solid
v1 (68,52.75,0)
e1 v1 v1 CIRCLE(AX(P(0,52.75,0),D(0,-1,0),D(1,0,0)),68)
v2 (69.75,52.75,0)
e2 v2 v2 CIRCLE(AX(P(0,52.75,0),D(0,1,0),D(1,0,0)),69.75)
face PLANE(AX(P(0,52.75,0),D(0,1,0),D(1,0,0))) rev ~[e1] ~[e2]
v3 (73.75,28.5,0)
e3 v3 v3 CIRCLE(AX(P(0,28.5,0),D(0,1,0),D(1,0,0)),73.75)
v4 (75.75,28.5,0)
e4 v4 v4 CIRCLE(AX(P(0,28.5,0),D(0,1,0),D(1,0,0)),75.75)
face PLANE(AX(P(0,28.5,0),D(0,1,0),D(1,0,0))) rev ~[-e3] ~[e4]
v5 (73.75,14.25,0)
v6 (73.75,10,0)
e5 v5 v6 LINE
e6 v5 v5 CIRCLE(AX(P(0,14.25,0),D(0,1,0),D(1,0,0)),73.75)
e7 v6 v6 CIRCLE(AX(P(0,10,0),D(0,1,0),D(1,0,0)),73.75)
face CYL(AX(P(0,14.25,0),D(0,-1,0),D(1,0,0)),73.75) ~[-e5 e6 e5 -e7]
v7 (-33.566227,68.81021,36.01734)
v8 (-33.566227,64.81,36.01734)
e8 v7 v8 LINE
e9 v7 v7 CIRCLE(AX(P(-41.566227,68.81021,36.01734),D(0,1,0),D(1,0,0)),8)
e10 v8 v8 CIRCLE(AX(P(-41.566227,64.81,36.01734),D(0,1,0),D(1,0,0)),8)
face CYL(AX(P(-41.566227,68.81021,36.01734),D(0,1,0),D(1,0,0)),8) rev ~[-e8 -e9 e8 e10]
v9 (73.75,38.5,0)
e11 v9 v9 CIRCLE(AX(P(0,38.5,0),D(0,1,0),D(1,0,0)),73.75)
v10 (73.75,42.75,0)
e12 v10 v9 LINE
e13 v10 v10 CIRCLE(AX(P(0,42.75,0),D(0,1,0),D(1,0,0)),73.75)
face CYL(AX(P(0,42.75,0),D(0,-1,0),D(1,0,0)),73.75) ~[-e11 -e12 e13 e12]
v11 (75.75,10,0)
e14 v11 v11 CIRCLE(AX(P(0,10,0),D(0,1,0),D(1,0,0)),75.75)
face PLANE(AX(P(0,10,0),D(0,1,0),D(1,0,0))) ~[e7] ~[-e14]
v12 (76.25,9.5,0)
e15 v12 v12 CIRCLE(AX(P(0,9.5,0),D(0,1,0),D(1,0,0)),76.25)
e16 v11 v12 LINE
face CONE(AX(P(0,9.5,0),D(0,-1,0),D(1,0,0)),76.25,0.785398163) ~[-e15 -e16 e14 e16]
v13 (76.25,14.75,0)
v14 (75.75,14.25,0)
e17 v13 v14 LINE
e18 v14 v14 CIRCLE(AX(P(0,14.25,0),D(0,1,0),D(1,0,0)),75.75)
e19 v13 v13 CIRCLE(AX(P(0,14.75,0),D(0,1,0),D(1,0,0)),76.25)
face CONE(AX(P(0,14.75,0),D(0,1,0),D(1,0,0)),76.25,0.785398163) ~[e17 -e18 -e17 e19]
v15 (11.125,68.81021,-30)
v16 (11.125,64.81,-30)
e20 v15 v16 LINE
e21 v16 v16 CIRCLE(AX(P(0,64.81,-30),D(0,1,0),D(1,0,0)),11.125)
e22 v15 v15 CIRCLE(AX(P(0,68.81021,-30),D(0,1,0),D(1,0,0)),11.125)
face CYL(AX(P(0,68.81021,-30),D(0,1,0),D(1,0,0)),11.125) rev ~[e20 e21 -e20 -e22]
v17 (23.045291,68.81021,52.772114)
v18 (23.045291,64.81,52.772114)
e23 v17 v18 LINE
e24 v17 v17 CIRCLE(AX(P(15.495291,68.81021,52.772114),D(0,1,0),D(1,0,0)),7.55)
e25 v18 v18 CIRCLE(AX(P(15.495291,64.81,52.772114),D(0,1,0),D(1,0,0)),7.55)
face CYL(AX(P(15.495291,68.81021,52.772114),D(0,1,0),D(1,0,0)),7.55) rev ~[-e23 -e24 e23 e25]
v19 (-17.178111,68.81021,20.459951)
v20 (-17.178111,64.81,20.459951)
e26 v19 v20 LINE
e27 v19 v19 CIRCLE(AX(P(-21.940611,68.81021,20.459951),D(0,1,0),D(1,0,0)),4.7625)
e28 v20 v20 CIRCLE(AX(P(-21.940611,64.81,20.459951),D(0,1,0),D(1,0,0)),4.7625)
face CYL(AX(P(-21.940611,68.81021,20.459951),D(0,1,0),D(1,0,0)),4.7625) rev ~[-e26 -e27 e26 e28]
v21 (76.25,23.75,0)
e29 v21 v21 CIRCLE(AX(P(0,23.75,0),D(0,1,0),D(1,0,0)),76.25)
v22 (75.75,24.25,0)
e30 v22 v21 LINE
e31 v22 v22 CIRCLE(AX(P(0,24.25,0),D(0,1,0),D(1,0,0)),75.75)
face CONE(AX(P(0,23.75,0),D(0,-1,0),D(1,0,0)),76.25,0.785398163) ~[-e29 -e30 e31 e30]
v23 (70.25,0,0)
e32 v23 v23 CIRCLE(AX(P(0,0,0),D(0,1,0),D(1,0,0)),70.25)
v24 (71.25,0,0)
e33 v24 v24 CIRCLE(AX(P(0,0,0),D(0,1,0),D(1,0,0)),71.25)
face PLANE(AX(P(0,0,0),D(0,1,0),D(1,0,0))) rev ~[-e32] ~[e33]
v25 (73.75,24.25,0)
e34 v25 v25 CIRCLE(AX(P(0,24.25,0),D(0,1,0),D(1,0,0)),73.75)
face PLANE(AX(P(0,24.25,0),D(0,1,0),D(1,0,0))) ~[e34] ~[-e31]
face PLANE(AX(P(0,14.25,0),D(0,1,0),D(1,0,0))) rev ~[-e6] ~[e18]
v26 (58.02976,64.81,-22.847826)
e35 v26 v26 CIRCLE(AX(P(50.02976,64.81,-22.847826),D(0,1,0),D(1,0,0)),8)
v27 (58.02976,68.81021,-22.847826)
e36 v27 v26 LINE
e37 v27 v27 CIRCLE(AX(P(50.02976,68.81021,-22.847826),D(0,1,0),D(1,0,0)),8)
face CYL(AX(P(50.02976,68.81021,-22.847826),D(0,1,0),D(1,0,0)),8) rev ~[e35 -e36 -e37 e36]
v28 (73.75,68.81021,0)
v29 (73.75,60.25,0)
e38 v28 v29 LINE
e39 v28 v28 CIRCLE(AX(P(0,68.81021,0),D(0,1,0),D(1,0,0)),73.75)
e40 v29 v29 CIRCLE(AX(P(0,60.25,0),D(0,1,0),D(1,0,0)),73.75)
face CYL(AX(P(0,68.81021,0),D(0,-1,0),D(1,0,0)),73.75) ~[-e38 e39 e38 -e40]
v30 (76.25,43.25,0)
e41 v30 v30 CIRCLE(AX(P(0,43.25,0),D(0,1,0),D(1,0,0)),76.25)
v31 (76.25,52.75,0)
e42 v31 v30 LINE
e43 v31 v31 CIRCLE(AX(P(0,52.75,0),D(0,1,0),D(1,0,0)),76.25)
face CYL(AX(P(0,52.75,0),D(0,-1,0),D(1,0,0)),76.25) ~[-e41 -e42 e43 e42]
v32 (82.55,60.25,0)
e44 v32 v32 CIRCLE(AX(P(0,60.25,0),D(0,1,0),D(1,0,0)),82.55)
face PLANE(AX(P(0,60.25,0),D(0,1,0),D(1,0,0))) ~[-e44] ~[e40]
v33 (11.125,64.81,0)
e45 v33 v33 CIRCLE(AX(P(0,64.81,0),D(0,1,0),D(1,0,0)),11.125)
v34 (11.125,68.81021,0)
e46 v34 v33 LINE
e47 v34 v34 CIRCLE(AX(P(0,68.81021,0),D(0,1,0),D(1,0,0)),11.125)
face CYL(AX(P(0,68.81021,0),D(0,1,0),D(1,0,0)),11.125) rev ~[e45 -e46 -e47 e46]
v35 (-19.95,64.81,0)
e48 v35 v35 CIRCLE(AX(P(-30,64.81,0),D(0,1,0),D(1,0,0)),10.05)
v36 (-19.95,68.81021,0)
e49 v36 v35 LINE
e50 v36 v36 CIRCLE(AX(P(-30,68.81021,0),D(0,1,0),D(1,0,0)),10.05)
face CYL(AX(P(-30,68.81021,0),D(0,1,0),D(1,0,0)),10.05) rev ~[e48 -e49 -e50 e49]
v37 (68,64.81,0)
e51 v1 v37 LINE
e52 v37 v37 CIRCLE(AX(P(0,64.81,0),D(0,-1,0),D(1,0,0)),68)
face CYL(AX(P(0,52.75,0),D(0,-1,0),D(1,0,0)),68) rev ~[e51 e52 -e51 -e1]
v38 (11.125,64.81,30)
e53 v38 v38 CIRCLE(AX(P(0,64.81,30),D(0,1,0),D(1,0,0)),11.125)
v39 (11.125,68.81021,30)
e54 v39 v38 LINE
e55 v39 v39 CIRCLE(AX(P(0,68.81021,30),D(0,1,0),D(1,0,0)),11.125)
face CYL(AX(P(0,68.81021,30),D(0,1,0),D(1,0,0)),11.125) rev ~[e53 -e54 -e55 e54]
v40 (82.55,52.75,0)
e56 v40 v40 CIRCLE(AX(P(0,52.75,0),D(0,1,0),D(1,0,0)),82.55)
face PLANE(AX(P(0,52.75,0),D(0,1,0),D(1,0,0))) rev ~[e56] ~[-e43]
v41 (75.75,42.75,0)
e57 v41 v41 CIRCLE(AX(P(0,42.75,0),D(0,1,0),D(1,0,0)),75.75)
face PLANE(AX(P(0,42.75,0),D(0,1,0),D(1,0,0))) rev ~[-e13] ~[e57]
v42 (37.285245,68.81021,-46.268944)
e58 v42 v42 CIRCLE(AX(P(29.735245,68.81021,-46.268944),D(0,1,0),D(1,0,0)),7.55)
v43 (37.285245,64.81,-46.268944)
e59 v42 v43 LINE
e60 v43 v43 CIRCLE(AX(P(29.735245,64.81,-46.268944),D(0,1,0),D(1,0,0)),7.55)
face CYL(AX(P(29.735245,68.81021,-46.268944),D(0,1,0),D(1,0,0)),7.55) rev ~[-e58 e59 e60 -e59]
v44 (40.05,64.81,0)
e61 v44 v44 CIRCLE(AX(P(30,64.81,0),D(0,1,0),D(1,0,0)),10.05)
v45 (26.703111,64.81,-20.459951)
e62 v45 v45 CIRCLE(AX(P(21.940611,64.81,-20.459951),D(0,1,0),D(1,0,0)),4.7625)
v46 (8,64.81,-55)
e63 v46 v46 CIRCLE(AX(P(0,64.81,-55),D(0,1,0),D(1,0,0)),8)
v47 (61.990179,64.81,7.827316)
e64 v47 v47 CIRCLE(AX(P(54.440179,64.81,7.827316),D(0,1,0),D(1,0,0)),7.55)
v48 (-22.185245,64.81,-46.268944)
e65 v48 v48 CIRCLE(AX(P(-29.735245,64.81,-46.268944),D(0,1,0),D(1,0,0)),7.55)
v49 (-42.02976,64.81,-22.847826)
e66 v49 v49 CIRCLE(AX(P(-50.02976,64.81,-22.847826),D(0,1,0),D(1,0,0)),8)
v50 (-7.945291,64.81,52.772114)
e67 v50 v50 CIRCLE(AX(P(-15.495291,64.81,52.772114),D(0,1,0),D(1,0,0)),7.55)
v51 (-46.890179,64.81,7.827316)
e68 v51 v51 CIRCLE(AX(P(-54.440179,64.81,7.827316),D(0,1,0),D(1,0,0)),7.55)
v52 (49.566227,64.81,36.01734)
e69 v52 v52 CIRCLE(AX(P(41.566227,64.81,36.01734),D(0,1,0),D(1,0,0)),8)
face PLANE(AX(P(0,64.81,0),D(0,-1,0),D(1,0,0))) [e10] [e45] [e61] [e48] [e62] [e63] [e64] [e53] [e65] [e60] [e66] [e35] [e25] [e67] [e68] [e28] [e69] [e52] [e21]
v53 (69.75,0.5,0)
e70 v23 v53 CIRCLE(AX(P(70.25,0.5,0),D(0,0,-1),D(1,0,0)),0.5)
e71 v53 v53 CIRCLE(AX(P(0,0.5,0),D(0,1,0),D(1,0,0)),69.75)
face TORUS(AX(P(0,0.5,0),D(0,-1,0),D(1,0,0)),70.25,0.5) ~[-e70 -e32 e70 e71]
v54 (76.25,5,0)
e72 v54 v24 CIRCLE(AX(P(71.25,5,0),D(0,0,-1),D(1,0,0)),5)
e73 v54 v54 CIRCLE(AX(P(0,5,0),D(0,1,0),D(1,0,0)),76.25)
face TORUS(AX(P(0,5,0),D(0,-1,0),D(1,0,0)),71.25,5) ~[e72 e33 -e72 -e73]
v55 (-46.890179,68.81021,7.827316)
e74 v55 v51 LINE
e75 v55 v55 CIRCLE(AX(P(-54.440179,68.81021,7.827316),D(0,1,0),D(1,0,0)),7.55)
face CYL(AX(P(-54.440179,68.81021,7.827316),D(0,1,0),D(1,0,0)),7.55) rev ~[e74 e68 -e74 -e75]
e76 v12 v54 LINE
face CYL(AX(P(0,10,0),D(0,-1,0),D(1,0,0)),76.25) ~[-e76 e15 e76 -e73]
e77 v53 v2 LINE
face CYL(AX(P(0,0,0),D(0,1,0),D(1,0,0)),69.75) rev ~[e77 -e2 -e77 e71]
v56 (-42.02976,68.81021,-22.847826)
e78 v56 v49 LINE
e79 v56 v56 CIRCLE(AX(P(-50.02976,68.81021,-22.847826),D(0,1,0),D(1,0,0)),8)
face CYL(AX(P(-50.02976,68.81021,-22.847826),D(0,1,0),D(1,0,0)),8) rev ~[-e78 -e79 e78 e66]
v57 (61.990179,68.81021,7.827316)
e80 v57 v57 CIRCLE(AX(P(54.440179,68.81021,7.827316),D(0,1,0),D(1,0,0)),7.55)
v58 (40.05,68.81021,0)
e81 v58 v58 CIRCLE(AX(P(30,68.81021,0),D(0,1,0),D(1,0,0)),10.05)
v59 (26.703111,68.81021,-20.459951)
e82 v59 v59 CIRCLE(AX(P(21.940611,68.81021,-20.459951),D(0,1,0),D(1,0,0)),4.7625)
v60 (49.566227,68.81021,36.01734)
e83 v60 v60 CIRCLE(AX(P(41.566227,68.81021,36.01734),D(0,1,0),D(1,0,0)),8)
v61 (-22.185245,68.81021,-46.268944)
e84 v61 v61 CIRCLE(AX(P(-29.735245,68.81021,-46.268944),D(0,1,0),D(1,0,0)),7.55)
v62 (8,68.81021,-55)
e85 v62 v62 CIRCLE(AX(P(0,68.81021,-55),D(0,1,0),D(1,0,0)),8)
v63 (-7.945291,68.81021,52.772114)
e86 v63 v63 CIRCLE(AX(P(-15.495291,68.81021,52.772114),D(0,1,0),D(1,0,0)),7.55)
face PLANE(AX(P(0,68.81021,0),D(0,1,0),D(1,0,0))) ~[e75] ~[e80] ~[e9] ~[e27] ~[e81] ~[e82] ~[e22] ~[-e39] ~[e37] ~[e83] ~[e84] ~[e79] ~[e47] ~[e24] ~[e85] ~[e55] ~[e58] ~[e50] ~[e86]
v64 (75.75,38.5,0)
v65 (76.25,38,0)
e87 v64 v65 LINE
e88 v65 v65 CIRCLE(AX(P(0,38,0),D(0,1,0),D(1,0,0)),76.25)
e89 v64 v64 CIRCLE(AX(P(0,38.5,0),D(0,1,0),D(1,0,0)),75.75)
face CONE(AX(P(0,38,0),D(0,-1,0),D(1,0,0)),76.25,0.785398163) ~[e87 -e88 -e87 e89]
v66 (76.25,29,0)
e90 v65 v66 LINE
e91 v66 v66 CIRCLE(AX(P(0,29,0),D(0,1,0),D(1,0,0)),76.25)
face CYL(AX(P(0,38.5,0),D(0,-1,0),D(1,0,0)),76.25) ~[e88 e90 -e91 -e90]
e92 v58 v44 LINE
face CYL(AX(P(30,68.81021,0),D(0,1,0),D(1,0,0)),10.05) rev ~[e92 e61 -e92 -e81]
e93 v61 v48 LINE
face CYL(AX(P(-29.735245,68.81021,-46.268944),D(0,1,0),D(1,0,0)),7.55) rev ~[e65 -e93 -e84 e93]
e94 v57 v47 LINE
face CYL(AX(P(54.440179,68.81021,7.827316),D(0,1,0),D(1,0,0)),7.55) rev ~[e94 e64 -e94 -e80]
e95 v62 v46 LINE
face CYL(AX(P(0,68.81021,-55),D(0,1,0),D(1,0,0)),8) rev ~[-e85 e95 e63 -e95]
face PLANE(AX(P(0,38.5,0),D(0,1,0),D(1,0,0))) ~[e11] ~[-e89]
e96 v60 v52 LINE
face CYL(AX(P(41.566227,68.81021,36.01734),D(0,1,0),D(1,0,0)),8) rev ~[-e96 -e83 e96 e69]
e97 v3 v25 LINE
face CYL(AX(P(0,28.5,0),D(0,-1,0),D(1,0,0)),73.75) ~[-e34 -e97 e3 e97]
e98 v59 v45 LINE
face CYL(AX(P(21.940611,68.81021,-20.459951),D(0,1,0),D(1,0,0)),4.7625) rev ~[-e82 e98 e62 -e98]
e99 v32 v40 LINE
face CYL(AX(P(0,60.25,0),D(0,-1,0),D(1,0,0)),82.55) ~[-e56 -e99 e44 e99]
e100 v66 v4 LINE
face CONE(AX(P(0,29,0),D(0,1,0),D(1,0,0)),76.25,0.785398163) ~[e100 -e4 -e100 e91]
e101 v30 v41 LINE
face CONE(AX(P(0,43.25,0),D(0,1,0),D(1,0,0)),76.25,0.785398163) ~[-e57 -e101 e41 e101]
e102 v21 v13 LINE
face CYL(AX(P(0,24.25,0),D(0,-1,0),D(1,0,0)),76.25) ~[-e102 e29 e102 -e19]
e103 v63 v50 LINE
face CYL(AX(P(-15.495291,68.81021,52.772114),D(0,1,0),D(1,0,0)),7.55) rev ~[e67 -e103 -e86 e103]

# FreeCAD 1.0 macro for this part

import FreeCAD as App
import Part
import Sketcher

V = App.Vector
Q = App.Units.Quantity


def edges_at(feature, points):
    """Names of the edges that pass closest to the given points."""
    edges = feature.Shape.Edges
    near = lambda p: min(range(len(edges)), key=lambda i: edges[i].distToShape(Part.Vertex(*p))[0])
    return sorted({f"Edge{near(p) + 1}" for p in points})


def add_polygon(sketch, points):
    """Adds a closed chain of lines whose ends are joined by coincident constraints."""
    first, n = sketch.GeometryCount, len(points)
    for a, b in zip(points, points[1:] + points[:1]):
        sketch.addGeometry(Part.LineSegment(App.Vector(*a, 0), App.Vector(*b, 0)), False)
    for i in range(n):
        sketch.addConstraint(Sketcher.Constraint("Coincident", first + i, 2, first + (i + 1) % n, 1))

doc = App.newDocument("Part")
body = doc.addObject("PartDesign::Body", "Body")

# Sketch on XY plane
sketch1 = body.newObject("Sketcher::SketchObject", "Sketch")
sketch1.AttachmentSupport = (doc.getObject("XY_Plane"), [""])
sketch1.MapMode = "FlatFace"
add_polygon(sketch1, [(76.2, 42.8), (76.2, 52.8), (82.5, 52.8), (82.5, 60.2), (73.8, 60.2), (73.8, 68.8), (0, 68.8), (0, 52.8), (69.8, 52.8), (69.8, 0), (76.2, 0), (76.2, 10), (73.8, 10), (73.8, 14.2), (76.2, 14.2), (76.2, 24.2), (73.8, 24.2), (73.8, 28.5), (76.2, 28.5), (76.2, 38.5), (73.8, 38.5), (73.8, 42.8)])  # lines 0-21
sketch1.addConstraint(Sketcher.Constraint("Vertical", 0))
sketch1.addConstraint(Sketcher.Constraint("Horizontal", 1))
sketch1.addConstraint(Sketcher.Constraint("Vertical", 2))
sketch1.addConstraint(Sketcher.Constraint("Horizontal", 3))
sketch1.addConstraint(Sketcher.Constraint("Vertical", 4))
sketch1.addConstraint(Sketcher.Constraint("Horizontal", 5))
sketch1.addConstraint(Sketcher.Constraint("Vertical", 6))
sketch1.addConstraint(Sketcher.Constraint("Horizontal", 7))
sketch1.addConstraint(Sketcher.Constraint("Vertical", 8))
sketch1.addConstraint(Sketcher.Constraint("Horizontal", 9))
sketch1.addConstraint(Sketcher.Constraint("Vertical", 10))
sketch1.addConstraint(Sketcher.Constraint("Horizontal", 11))
sketch1.addConstraint(Sketcher.Constraint("Vertical", 12))
sketch1.addConstraint(Sketcher.Constraint("Horizontal", 13))
sketch1.addConstraint(Sketcher.Constraint("Vertical", 14))
sketch1.addConstraint(Sketcher.Constraint("Horizontal", 15))
sketch1.addConstraint(Sketcher.Constraint("Vertical", 16))
sketch1.addConstraint(Sketcher.Constraint("Horizontal", 17))
sketch1.addConstraint(Sketcher.Constraint("Vertical", 18))
sketch1.addConstraint(Sketcher.Constraint("Horizontal", 19))
sketch1.addConstraint(Sketcher.Constraint("Vertical", 20))
sketch1.addConstraint(Sketcher.Constraint("Horizontal", 21))
sketch1.addConstraint(Sketcher.Constraint("PointOnObject", 5, 2, -2))
sketch1.addConstraint(Sketcher.Constraint("PointOnObject", 8, 2, -1))
sketch1.addConstraint(Sketcher.Constraint("Horizontal", 1, 2, 6, 2))
sketch1.addConstraint(Sketcher.Constraint("Vertical", 0, 2, 9, 2))
sketch1.addConstraint(Sketcher.Constraint("Vertical", 4, 2, 11, 2))
sketch1.addConstraint(Sketcher.Constraint("Vertical", 10, 2, 13, 2))
sketch1.addConstraint(Sketcher.Constraint("Vertical", 12, 2, 15, 2))
sketch1.addConstraint(Sketcher.Constraint("Vertical", 14, 2, 17, 2))
sketch1.addConstraint(Sketcher.Constraint("Vertical", 16, 2, 19, 2))
sketch1.addConstraint(Sketcher.Constraint("Equal", 0, 10))
sketch1.addConstraint(Sketcher.Constraint("Equal", 10, 14))
sketch1.addConstraint(Sketcher.Constraint("Equal", 12, 16))
sketch1.addConstraint(Sketcher.Constraint("Equal", 14, 18))
sketch1.addConstraint(Sketcher.Constraint("Equal", 16, 20))
sketch1.addConstraint(Sketcher.Constraint("DistanceY", 0, 1, 0, 2, Q("10 mm")))
sketch1.addConstraint(Sketcher.Constraint("DistanceX", 1, 1, 1, 2, Q("6.3 mm")))
sketch1.addConstraint(Sketcher.Constraint("DistanceX", 3, 2, 3, 1, Q("8.8 mm")))
sketch1.addConstraint(Sketcher.Constraint("DistanceX", 9, 1, 9, 2, Q("6.5 mm")))
sketch1.addConstraint(Sketcher.Constraint("DistanceY", 2, 1, 2, 2, Q("7.5 mm")))
sketch1.addConstraint(Sketcher.Constraint("DistanceX", 5, 2, 5, 1, Q("73.75 mm")))
sketch1.addConstraint(Sketcher.Constraint("DistanceY", 8, 2, 8, 1, Q("52.75 mm")))
sketch1.addConstraint(Sketcher.Constraint("DistanceY", 4, 1, 4, 2, Q("8.56021 mm")))
revolution = body.newObject("PartDesign::Revolution", "Revolution")
revolution.Profile = sketch1
revolution.ReferenceAxis = (sketch1, ["V_Axis"])
revolution.Angle = 360
doc.recompute()

chamfer = body.newObject("PartDesign::Chamfer", "Chamfer")
chamfer.Base = (revolution, edges_at(revolution, [
    (-76.25, 42.75, 0),
    (-76.25, 38.5, 0),
    (-76.25, 28.5, 0),
    (-76.25, 24.25, 0),
    (-76.25, 14.25, 0),
    (-76.25, 10, 0),
]))
chamfer.Size = 0.5
doc.recompute()

fillet = body.newObject("PartDesign::Fillet", "Fillet")
fillet.Base = (chamfer, edges_at(chamfer, [(-76.25, 0, 0)]))
fillet.Radius = 5
doc.recompute()

fillet2 = body.newObject("PartDesign::Fillet", "Fillet001")
fillet2.Base = (fillet, edges_at(fillet, [(-69.75, 0, 0)]))
fillet2.Radius = 0.5

# Sketch on XZ plane
sketch2 = body.newObject("Sketcher::SketchObject", "Sketch001")
sketch2.AttachmentSupport = (doc.getObject("XZ_Plane"), [""])
sketch2.MapMode = "FlatFace"
sketch2.AttachmentOffset = App.Placement(V(0, 0, -68.81021), App.Rotation())
sketch2.addGeometry(Part.Circle(V(0, 0, 0), V(0, 0, 1), 11), False)
sketch2.addConstraint(Sketcher.Constraint("Coincident", 0, 3, -1, 1))
sketch2.addConstraint(Sketcher.Constraint("Diameter", 0, Q("22.25 mm")))
pocket1 = body.newObject("PartDesign::Pocket", "Pocket")
pocket1.Profile = sketch2
pocket1.Type = "UpToFirst"
pocket1.Reversed = True

# Sketch on XZ plane
sketch3 = body.newObject("Sketcher::SketchObject", "Sketch002")
sketch3.AttachmentSupport = (doc.getObject("XZ_Plane"), [""])
sketch3.MapMode = "FlatFace"
sketch3.AttachmentOffset = App.Placement(V(0, 0, -68.81021), App.Rotation())
sketch3.addGeometry(Part.Circle(V(30, 0, 0), V(0, 0, 1), 10), False)
sketch3.addConstraint(Sketcher.Constraint("PointOnObject", 0, 3, -1))
sketch3.addConstraint(Sketcher.Constraint("Diameter", 0, Q("20.1 mm")))
sketch3.addConstraint(Sketcher.Constraint("DistanceX", -1, 1, 0, 3, Q("30 mm")))
pocket2 = body.newObject("PartDesign::Pocket", "Pocket001")
pocket2.Profile = sketch3
pocket2.Type = "UpToFirst"
pocket2.Reversed = True

# Sketch on XZ plane
sketch4 = body.newObject("Sketcher::SketchObject", "Sketch003")
sketch4.AttachmentSupport = (doc.getObject("XZ_Plane"), [""])
sketch4.MapMode = "FlatFace"
sketch4.AttachmentOffset = App.Placement(V(0, 0, -68.81021), App.Rotation())
sketch4.addGeometry(Part.Circle(V(0, 30, 0), V(0, 0, 1), 11), False)
sketch4.addConstraint(Sketcher.Constraint("PointOnObject", 0, 3, -2))
sketch4.addConstraint(Sketcher.Constraint("Diameter", 0, Q("22.25 mm")))
sketch4.addConstraint(Sketcher.Constraint("DistanceY", -1, 1, 0, 3, Q("30 mm")))
pocket3 = body.newObject("PartDesign::Pocket", "Pocket002")
pocket3.Profile = sketch4
pocket3.Type = "UpToFirst"
pocket3.Reversed = True

# Sketch on XZ plane
sketch5 = body.newObject("Sketcher::SketchObject", "Sketch004")
sketch5.AttachmentSupport = (doc.getObject("XZ_Plane"), [""])
sketch5.MapMode = "FlatFace"
sketch5.AttachmentOffset = App.Placement(V(0, 0, -68.81021), App.Rotation())
sketch5.addGeometry(Part.Circle(V(-30, 0, 0), V(0, 0, 1), 10), False)
sketch5.addConstraint(Sketcher.Constraint("PointOnObject", 0, 3, -1))
sketch5.addConstraint(Sketcher.Constraint("Diameter", 0, Q("20.1 mm")))
sketch5.addConstraint(Sketcher.Constraint("DistanceX", 0, 3, -1, 1, Q("30 mm")))
pocket4 = body.newObject("PartDesign::Pocket", "Pocket003")
pocket4.Profile = sketch5
pocket4.Type = "UpToFirst"
pocket4.Reversed = True

# Sketch on XZ plane
sketch6 = body.newObject("Sketcher::SketchObject", "Sketch005")
sketch6.AttachmentSupport = (doc.getObject("XZ_Plane"), [""])
sketch6.MapMode = "FlatFace"
sketch6.AttachmentOffset = App.Placement(V(0, 0, -68.81021), App.Rotation())
sketch6.addGeometry(Part.Circle(V(0, -30, 0), V(0, 0, 1), 11), False)
sketch6.addConstraint(Sketcher.Constraint("PointOnObject", 0, 3, -2))
sketch6.addConstraint(Sketcher.Constraint("Diameter", 0, Q("22.25 mm")))
sketch6.addConstraint(Sketcher.Constraint("DistanceY", 0, 3, -1, 1, Q("30 mm")))
pocket5 = body.newObject("PartDesign::Pocket", "Pocket004")
pocket5.Profile = sketch6
pocket5.Type = "UpToFirst"
pocket5.Reversed = True

# Sketch on XZ plane
sketch7 = body.newObject("Sketcher::SketchObject", "Sketch006")
sketch7.AttachmentSupport = (doc.getObject("XZ_Plane"), [""])
sketch7.MapMode = "FlatFace"
sketch7.AttachmentOffset = App.Placement(V(0, 0, -68.81021), App.Rotation())
sketch7.addGeometry(Part.Circle(V(0, -55, 0), V(0, 0, 1), 8), False)
sketch7.addConstraint(Sketcher.Constraint("PointOnObject", 0, 3, -2))
sketch7.addConstraint(Sketcher.Constraint("Diameter", 0, Q("16 mm")))
sketch7.addConstraint(Sketcher.Constraint("DistanceY", 0, 3, -1, 1, Q("55 mm")))
pocket6 = body.newObject("PartDesign::Pocket", "Pocket005")
pocket6.Profile = sketch7
pocket6.Type = "UpToFirst"
pocket6.Reversed = True

# Sketch on XZ plane
sketch8 = body.newObject("Sketcher::SketchObject", "Sketch007")
sketch8.AttachmentSupport = (doc.getObject("XZ_Plane"), [""])
sketch8.MapMode = "FlatFace"
sketch8.AttachmentOffset = App.Placement(V(0, 0, -68.81021), App.Rotation())
sketch8.addGeometry(Part.Circle(V(30, -46, 0), V(0, 0, 1), 8), False)
sketch8.addConstraint(Sketcher.Constraint("Diameter", 0, Q("15.1 mm")))
sketch8.addConstraint(Sketcher.Constraint("DistanceX", -1, 1, 0, 3, Q("29.735245 mm")))
sketch8.addConstraint(Sketcher.Constraint("DistanceY", 0, 3, -1, 1, Q("46.268944 mm")))
pocket7 = body.newObject("PartDesign::Pocket", "Pocket006")
pocket7.Profile = sketch8
pocket7.Type = "UpToFirst"
pocket7.Reversed = True

# Sketch on XZ plane
sketch9 = body.newObject("Sketcher::SketchObject", "Sketch008")
sketch9.AttachmentSupport = (doc.getObject("XZ_Plane"), [""])
sketch9.MapMode = "FlatFace"
sketch9.AttachmentOffset = App.Placement(V(0, 0, -68.81021), App.Rotation())
sketch9.addGeometry(Part.Circle(V(50, -23, 0), V(0, 0, 1), 8), False)
sketch9.addConstraint(Sketcher.Constraint("Diameter", 0, Q("16 mm")))
sketch9.addConstraint(Sketcher.Constraint("DistanceX", -1, 1, 0, 3, Q("50.02976 mm")))
sketch9.addConstraint(Sketcher.Constraint("DistanceY", 0, 3, -1, 1, Q("22.847826 mm")))
pocket8 = body.newObject("PartDesign::Pocket", "Pocket007")
pocket8.Profile = sketch9
pocket8.Type = "UpToFirst"
pocket8.Reversed = True

# Sketch on XZ plane
sketch10 = body.newObject("Sketcher::SketchObject", "Sketch009")
sketch10.AttachmentSupport = (doc.getObject("XZ_Plane"), [""])
sketch10.MapMode = "FlatFace"
sketch10.AttachmentOffset = App.Placement(V(0, 0, -68.81021), App.Rotation())
sketch10.addGeometry(Part.Circle(V(54, 8, 0), V(0, 0, 1), 8), False)
sketch10.addConstraint(Sketcher.Constraint("Diameter", 0, Q("15.1 mm")))
sketch10.addConstraint(Sketcher.Constraint("DistanceX", -1, 1, 0, 3, Q("54.440179 mm")))
sketch10.addConstraint(Sketcher.Constraint("DistanceY", -1, 1, 0, 3, Q("7.827316 mm")))
pocket9 = body.newObject("PartDesign::Pocket", "Pocket008")
pocket9.Profile = sketch10
pocket9.Type = "UpToFirst"
pocket9.Reversed = True

# Sketch on XZ plane
sketch11 = body.newObject("Sketcher::SketchObject", "Sketch010")
sketch11.AttachmentSupport = (doc.getObject("XZ_Plane"), [""])
sketch11.MapMode = "FlatFace"
sketch11.AttachmentOffset = App.Placement(V(0, 0, -68.81021), App.Rotation())
sketch11.addGeometry(Part.Circle(V(42, 36, 0), V(0, 0, 1), 8), False)
sketch11.addConstraint(Sketcher.Constraint("Diameter", 0, Q("16 mm")))
sketch11.addConstraint(Sketcher.Constraint("DistanceY", -1, 1, 0, 3, Q("36.01734 mm")))
sketch11.addConstraint(Sketcher.Constraint("DistanceX", -1, 1, 0, 3, Q("41.566227 mm")))
pocket10 = body.newObject("PartDesign::Pocket", "Pocket009")
pocket10.Profile = sketch11
pocket10.Type = "UpToFirst"
pocket10.Reversed = True

# Sketch on XZ plane
sketch12 = body.newObject("Sketcher::SketchObject", "Sketch011")
sketch12.AttachmentSupport = (doc.getObject("XZ_Plane"), [""])
sketch12.MapMode = "FlatFace"
sketch12.AttachmentOffset = App.Placement(V(0, 0, -68.81021), App.Rotation())
sketch12.addGeometry(Part.Circle(V(15, 53, 0), V(0, 0, 1), 8), False)
sketch12.addConstraint(Sketcher.Constraint("Diameter", 0, Q("15.1 mm")))
sketch12.addConstraint(Sketcher.Constraint("DistanceX", -1, 1, 0, 3, Q("15.495291 mm")))
sketch12.addConstraint(Sketcher.Constraint("DistanceY", -1, 1, 0, 3, Q("52.772114 mm")))
pocket11 = body.newObject("PartDesign::Pocket", "Pocket010")
pocket11.Profile = sketch12
pocket11.Type = "UpToFirst"
pocket11.Reversed = True

# Sketch on XZ plane
sketch13 = body.newObject("Sketcher::SketchObject", "Sketch012")
sketch13.AttachmentSupport = (doc.getObject("XZ_Plane"), [""])
sketch13.MapMode = "FlatFace"
sketch13.AttachmentOffset = App.Placement(V(0, 0, -68.81021), App.Rotation())
sketch13.addGeometry(Part.Circle(V(-15, 53, 0), V(0, 0, 1), 8), False)
sketch13.addConstraint(Sketcher.Constraint("Diameter", 0, Q("15.1 mm")))
sketch13.addConstraint(Sketcher.Constraint("DistanceX", 0, 3, -1, 1, Q("15.495291 mm")))
sketch13.addConstraint(Sketcher.Constraint("DistanceY", -1, 1, 0, 3, Q("52.772114 mm")))
pocket12 = body.newObject("PartDesign::Pocket", "Pocket011")
pocket12.Profile = sketch13
pocket12.Type = "UpToFirst"
pocket12.Reversed = True

# Sketch on XZ plane
sketch14 = body.newObject("Sketcher::SketchObject", "Sketch013")
sketch14.AttachmentSupport = (doc.getObject("XZ_Plane"), [""])
sketch14.MapMode = "FlatFace"
sketch14.AttachmentOffset = App.Placement(V(0, 0, -68.81021), App.Rotation())
sketch14.addGeometry(Part.Circle(V(-42, 36, 0), V(0, 0, 1), 8), False)
sketch14.addConstraint(Sketcher.Constraint("Diameter", 0, Q("16 mm")))
sketch14.addConstraint(Sketcher.Constraint("DistanceY", -1, 1, 0, 3, Q("36.01734 mm")))
sketch14.addConstraint(Sketcher.Constraint("DistanceX", 0, 3, -1, 1, Q("41.566227 mm")))
pocket13 = body.newObject("PartDesign::Pocket", "Pocket012")
pocket13.Profile = sketch14
pocket13.Type = "UpToFirst"
pocket13.Reversed = True

# Sketch on XZ plane
sketch15 = body.newObject("Sketcher::SketchObject", "Sketch014")
sketch15.AttachmentSupport = (doc.getObject("XZ_Plane"), [""])
sketch15.MapMode = "FlatFace"
sketch15.AttachmentOffset = App.Placement(V(0, 0, -68.81021), App.Rotation())
sketch15.addGeometry(Part.Circle(V(-54, 8, 0), V(0, 0, 1), 8), False)
sketch15.addConstraint(Sketcher.Constraint("Diameter", 0, Q("15.1 mm")))
sketch15.addConstraint(Sketcher.Constraint("DistanceX", 0, 3, -1, 1, Q("54.440179 mm")))
sketch15.addConstraint(Sketcher.Constraint("DistanceY", -1, 1, 0, 3, Q("7.827316 mm")))
pocket14 = body.newObject("PartDesign::Pocket", "Pocket013")
pocket14.Profile = sketch15
pocket14.Type = "UpToFirst"
pocket14.Reversed = True

# Sketch on XZ plane
sketch16 = body.newObject("Sketcher::SketchObject", "Sketch015")
sketch16.AttachmentSupport = (doc.getObject("XZ_Plane"), [""])
sketch16.MapMode = "FlatFace"
sketch16.AttachmentOffset = App.Placement(V(0, 0, -68.81021), App.Rotation())
sketch16.addGeometry(Part.Circle(V(-50, -23, 0), V(0, 0, 1), 8), False)
sketch16.addConstraint(Sketcher.Constraint("Diameter", 0, Q("16 mm")))
sketch16.addConstraint(Sketcher.Constraint("DistanceX", 0, 3, -1, 1, Q("50.02976 mm")))
sketch16.addConstraint(Sketcher.Constraint("DistanceY", 0, 3, -1, 1, Q("22.847826 mm")))
pocket15 = body.newObject("PartDesign::Pocket", "Pocket014")
pocket15.Profile = sketch16
pocket15.Type = "UpToFirst"
pocket15.Reversed = True

# Sketch on XZ plane
sketch17 = body.newObject("Sketcher::SketchObject", "Sketch016")
sketch17.AttachmentSupport = (doc.getObject("XZ_Plane"), [""])
sketch17.MapMode = "FlatFace"
sketch17.AttachmentOffset = App.Placement(V(0, 0, -68.81021), App.Rotation())
sketch17.addGeometry(Part.Circle(V(-30, -46, 0), V(0, 0, 1), 8), False)
sketch17.addConstraint(Sketcher.Constraint("Diameter", 0, Q("15.1 mm")))
sketch17.addConstraint(Sketcher.Constraint("DistanceX", 0, 3, -1, 1, Q("29.735245 mm")))
sketch17.addConstraint(Sketcher.Constraint("DistanceY", 0, 3, -1, 1, Q("46.268944 mm")))
pocket16 = body.newObject("PartDesign::Pocket", "Pocket015")
pocket16.Profile = sketch17
pocket16.Type = "UpToFirst"
pocket16.Reversed = True

# Sketch on XZ plane
sketch18 = body.newObject("Sketcher::SketchObject", "Sketch017")
sketch18.AttachmentSupport = (doc.getObject("XZ_Plane"), [""])
sketch18.MapMode = "FlatFace"
sketch18.AttachmentOffset = App.Placement(V(0, 0, -68.81021), App.Rotation())
sketch18.addGeometry(Part.Circle(V(21.9, -20.5, 0), V(0, 0, 1), 4.8), False)
sketch18.addConstraint(Sketcher.Constraint("Diameter", 0, Q("9.525 mm")))
sketch18.addConstraint(Sketcher.Constraint("DistanceX", -1, 1, 0, 3, Q("21.940611 mm")))
sketch18.addConstraint(Sketcher.Constraint("DistanceY", 0, 3, -1, 1, Q("20.459951 mm")))
pocket17 = body.newObject("PartDesign::Pocket", "Pocket016")
pocket17.Profile = sketch18
pocket17.Type = "UpToFirst"
pocket17.Reversed = True

# Sketch on XZ plane
sketch19 = body.newObject("Sketcher::SketchObject", "Sketch018")
sketch19.AttachmentSupport = (doc.getObject("XZ_Plane"), [""])
sketch19.MapMode = "FlatFace"
sketch19.AttachmentOffset = App.Placement(V(0, 0, -68.81021), App.Rotation())
sketch19.addGeometry(Part.Circle(V(-21.9, 20.5, 0), V(0, 0, 1), 4.8), False)
sketch19.addConstraint(Sketcher.Constraint("Diameter", 0, Q("9.525 mm")))
sketch19.addConstraint(Sketcher.Constraint("DistanceX", 0, 3, -1, 1, Q("21.940611 mm")))
sketch19.addConstraint(Sketcher.Constraint("DistanceY", -1, 1, 0, 3, Q("20.459951 mm")))
pocket18 = body.newObject("PartDesign::Pocket", "Pocket017")
pocket18.Profile = sketch19
pocket18.Type = "UpToFirst"
pocket18.Reversed = True

# Sketch on XZ plane
sketch20 = body.newObject("Sketcher::SketchObject", "Sketch019")
sketch20.AttachmentSupport = (doc.getObject("XZ_Plane"), [""])
sketch20.MapMode = "FlatFace"
sketch20.AttachmentOffset = App.Placement(V(0, 0, -52.75), App.Rotation())
sketch20.addGeometry(Part.Circle(V(0, 0, 0), V(0, 0, 1), 68), False)
sketch20.addConstraint(Sketcher.Constraint("Coincident", 0, 3, -1, 1))
sketch20.addConstraint(Sketcher.Constraint("Diameter", 0, Q("136 mm")))
pocket19 = body.newObject("PartDesign::Pocket", "Pocket018")
pocket19.Profile = sketch20
pocket19.Length = 12.06

doc.recompute()
